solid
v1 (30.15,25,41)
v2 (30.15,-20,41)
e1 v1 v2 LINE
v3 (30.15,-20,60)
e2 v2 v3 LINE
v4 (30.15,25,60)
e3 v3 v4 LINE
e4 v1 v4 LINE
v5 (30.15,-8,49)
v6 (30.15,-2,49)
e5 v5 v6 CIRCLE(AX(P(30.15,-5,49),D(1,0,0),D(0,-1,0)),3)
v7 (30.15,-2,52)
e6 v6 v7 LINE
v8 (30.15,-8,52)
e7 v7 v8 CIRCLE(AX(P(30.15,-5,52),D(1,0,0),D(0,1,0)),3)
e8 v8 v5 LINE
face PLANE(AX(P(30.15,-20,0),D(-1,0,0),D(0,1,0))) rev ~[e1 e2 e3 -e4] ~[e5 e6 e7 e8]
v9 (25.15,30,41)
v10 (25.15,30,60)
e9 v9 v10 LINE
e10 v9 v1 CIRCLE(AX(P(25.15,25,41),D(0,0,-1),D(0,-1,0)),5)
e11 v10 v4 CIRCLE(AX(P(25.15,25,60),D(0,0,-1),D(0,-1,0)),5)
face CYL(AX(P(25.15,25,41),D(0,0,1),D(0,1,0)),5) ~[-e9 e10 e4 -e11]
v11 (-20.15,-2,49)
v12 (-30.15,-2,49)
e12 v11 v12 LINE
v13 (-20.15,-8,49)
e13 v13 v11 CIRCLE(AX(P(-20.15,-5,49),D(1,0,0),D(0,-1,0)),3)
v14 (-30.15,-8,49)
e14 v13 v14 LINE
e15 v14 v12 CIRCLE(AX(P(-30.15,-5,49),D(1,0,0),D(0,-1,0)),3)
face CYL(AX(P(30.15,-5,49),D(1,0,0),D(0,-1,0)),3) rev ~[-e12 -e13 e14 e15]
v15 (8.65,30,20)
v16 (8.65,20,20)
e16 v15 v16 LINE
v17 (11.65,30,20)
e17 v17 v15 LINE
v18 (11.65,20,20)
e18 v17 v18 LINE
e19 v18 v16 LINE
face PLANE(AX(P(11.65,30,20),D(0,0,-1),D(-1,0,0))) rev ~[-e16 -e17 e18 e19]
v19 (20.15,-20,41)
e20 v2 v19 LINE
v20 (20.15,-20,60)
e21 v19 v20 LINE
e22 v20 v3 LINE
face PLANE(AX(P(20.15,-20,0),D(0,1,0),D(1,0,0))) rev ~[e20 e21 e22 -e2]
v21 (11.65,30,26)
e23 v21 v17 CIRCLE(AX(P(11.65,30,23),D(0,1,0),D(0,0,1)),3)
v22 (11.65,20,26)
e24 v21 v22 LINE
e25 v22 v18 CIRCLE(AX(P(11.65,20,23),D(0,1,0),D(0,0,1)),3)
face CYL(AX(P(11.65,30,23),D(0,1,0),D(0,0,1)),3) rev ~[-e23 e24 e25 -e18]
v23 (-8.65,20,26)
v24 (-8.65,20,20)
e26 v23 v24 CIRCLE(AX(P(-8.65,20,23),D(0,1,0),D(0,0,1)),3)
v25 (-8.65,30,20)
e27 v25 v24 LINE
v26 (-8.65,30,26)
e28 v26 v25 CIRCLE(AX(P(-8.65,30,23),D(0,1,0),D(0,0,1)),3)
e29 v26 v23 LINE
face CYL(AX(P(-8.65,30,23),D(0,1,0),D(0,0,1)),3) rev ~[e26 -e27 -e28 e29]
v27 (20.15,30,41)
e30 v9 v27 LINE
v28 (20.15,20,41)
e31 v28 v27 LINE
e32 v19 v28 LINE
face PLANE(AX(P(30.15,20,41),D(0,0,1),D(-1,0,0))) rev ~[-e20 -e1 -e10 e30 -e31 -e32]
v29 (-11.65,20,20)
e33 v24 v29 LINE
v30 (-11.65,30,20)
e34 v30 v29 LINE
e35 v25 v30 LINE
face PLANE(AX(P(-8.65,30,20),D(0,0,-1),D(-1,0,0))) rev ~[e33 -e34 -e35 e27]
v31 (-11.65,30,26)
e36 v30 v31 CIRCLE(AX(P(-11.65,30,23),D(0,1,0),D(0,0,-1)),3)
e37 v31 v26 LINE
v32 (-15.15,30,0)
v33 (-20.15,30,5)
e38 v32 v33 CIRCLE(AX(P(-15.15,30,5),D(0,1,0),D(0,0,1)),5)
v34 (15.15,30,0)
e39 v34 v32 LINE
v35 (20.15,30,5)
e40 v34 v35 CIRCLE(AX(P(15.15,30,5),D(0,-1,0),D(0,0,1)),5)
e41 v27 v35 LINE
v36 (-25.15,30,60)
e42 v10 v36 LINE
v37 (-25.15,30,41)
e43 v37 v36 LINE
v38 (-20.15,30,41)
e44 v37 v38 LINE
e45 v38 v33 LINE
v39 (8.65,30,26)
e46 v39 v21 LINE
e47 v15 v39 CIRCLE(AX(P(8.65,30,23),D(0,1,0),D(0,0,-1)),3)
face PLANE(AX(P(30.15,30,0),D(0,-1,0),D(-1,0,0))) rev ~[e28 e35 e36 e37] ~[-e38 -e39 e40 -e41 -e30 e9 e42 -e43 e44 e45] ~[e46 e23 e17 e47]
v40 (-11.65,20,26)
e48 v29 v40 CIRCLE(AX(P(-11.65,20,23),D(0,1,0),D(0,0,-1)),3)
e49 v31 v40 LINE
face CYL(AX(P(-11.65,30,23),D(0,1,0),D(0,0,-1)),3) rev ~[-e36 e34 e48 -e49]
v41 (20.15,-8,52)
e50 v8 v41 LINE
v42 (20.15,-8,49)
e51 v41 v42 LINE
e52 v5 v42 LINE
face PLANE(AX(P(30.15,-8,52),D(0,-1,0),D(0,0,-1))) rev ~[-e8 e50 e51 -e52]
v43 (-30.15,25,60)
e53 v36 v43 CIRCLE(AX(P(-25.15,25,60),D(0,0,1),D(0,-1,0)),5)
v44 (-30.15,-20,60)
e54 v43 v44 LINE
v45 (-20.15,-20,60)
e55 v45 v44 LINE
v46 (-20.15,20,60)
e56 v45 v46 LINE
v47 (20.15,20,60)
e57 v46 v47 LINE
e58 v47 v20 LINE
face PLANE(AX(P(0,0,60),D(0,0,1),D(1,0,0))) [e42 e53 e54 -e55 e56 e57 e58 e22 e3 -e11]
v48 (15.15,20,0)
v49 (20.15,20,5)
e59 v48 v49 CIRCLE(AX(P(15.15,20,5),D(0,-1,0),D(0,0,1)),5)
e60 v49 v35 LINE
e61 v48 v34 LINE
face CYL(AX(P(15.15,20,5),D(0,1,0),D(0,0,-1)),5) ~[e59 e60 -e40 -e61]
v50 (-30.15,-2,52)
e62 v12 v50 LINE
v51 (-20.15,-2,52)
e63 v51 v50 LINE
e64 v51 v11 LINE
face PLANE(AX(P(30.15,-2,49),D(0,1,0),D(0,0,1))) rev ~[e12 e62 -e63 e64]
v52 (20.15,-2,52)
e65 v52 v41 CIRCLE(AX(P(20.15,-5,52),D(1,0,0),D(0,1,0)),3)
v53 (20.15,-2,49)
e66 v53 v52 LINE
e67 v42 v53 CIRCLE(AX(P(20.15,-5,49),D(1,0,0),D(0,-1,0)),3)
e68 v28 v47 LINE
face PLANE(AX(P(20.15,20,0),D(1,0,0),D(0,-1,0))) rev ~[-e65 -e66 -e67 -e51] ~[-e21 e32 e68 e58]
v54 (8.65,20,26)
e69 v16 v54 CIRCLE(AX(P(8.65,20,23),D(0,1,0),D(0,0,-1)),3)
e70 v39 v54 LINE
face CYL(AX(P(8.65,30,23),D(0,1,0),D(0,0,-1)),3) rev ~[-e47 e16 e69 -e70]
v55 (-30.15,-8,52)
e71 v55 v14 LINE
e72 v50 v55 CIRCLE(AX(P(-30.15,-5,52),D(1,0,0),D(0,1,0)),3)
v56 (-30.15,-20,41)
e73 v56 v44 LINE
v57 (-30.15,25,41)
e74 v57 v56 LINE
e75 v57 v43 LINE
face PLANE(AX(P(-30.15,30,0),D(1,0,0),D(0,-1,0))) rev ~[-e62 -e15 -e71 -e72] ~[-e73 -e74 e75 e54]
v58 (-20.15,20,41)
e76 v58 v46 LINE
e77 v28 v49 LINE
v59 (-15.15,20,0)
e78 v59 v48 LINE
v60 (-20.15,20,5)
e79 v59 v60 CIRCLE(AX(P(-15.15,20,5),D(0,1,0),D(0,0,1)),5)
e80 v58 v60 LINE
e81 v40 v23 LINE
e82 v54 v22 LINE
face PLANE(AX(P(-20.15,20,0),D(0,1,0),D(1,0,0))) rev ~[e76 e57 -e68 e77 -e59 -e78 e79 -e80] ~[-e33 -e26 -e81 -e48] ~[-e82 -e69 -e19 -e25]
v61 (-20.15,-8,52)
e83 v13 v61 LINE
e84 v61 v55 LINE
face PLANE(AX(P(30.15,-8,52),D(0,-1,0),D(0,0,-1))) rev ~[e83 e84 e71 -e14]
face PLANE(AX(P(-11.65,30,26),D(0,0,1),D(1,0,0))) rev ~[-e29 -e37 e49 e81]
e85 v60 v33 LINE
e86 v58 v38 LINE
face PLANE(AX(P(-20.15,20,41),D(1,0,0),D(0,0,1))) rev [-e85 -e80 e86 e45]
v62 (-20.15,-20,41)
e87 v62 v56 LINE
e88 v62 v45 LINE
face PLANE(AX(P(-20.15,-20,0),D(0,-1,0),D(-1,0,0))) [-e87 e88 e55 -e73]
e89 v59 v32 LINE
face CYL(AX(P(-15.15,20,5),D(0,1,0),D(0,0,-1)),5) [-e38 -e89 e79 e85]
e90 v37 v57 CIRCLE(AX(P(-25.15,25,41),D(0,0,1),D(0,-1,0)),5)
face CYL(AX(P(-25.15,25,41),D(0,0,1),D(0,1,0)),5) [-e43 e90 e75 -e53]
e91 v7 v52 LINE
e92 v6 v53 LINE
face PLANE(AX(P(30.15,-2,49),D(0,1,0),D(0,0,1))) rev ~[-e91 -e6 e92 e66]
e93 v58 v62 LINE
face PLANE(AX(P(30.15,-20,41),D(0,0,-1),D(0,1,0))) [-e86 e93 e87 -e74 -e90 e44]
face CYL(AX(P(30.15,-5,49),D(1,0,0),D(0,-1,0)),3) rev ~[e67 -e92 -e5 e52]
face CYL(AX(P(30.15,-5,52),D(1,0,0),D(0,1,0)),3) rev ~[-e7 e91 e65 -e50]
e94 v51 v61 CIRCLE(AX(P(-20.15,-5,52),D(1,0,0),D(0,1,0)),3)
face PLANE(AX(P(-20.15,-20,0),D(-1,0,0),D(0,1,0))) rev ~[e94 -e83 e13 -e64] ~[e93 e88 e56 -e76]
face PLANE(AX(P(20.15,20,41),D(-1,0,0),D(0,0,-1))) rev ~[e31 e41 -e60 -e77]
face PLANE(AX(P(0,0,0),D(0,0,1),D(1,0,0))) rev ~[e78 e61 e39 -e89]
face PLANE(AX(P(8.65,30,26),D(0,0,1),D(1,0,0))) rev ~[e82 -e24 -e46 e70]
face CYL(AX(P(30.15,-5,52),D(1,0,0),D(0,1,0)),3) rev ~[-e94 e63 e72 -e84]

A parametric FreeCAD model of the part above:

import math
import FreeCAD as App
import Part
import Sketcher
from FreeCAD import Vector
Q = App.Units.Quantity


def edges_at(feature, points):
    """Names of the edges that pass closest to the given points."""
    edges = feature.Shape.Edges
    near = lambda p: min(range(len(edges)), key=lambda i: edges[i].distToShape(Part.Vertex(*p))[0])
    return sorted({f"Edge{near(p) + 1}" for p in points})


def add_polygon(sketch, points):
    """Adds a closed chain of lines whose ends are joined by coincident constraints."""
    first, n = sketch.GeometryCount, len(points)
    for a, b in zip(points, points[1:] + points[:1]):
        sketch.addGeometry(Part.LineSegment(App.Vector(*a, 0), App.Vector(*b, 0)), False)
    for i in range(n):
        sketch.addConstraint(Sketcher.Constraint("Coincident", first + i, 2, first + (i + 1) % n, 1))

doc = App.newDocument("Part")
body = doc.addObject("PartDesign::Body", "Body")

# Sketch on XY plane
sketch1 = body.newObject("Sketcher::SketchObject", "Sketch")
sketch1.AttachmentSupport = (doc.getObject("XY_Plane"), [""])
sketch1.MapMode = "FlatFace"
add_polygon(sketch1, [(-20, -20), (-20, 20), (20, 20), (20, -20), (30, -20), (30, 30), (-30, 30), (-30, -20)])  # lines 0-7
sketch1.addConstraint(Sketcher.Constraint("Vertical", 0))
sketch1.addConstraint(Sketcher.Constraint("Horizontal", 1))
sketch1.addConstraint(Sketcher.Constraint("Vertical", 2))
sketch1.addConstraint(Sketcher.Constraint("Horizontal", 3))
sketch1.addConstraint(Sketcher.Constraint("Vertical", 4))
sketch1.addConstraint(Sketcher.Constraint("Horizontal", 5))
sketch1.addConstraint(Sketcher.Constraint("Vertical", 6))
sketch1.addConstraint(Sketcher.Constraint("Horizontal", 7))
sketch1.addConstraint(Sketcher.Constraint("Symmetric", 0, 2, 2, 2, -1, 1))
sketch1.addConstraint(Sketcher.Constraint("Symmetric", 3, 2, 6, 2, -2))
sketch1.addConstraint(Sketcher.Constraint("DistanceX", 3, 1, 3, 2, Q("10 mm")))
sketch1.addConstraint(Sketcher.Constraint("DistanceY", 0, 1, 0, 2, Q("40 mm")))
sketch1.addConstraint(Sketcher.Constraint("DistanceX", 1, 1, 1, 2, Q("40.3 mm")))
sketch1.addConstraint(Sketcher.Constraint("DistanceY", 1, 2, 4, 2, Q("10 mm")))
pad1 = body.newObject("PartDesign::Pad", "Pad")
pad1.Profile = sketch1
pad1.Length = 60

# Sketch on YZ plane
sketch2 = body.newObject("Sketcher::SketchObject", "Sketch001")
sketch2.AttachmentSupport = (doc.getObject("YZ_Plane"), [""])
sketch2.MapMode = "FlatFace"
sketch2.AttachmentOffset = App.Placement(Vector(0, 0, 30.15), App.Rotation())
add_polygon(sketch2, [(20, 0), (20, 41), (-20, 41), (-20, 0)])  # lines 0-3
sketch2.addConstraint(Sketcher.Constraint("Vertical", 0))
sketch2.addConstraint(Sketcher.Constraint("Horizontal", 1))
sketch2.addConstraint(Sketcher.Constraint("Vertical", 2))
sketch2.addConstraint(Sketcher.Constraint("Horizontal", 3))
sketch2.addConstraint(Sketcher.Constraint("Symmetric", 2, 2, 3, 2, -1, 1))
sketch2.addConstraint(Sketcher.Constraint("DistanceX", 1, 2, 1, 1, Q("40 mm")))
sketch2.addConstraint(Sketcher.Constraint("DistanceY", 0, 1, 0, 2, Q("41 mm")))
pocket1 = body.newObject("PartDesign::Pocket", "Pocket")
pocket1.Profile = sketch2
pocket1.Type = "ThroughAll"

# Sketch on XZ plane
sketch3 = body.newObject("Sketcher::SketchObject", "Sketch002")
sketch3.AttachmentSupport = (doc.getObject("XZ_Plane"), [""])
sketch3.MapMode = "FlatFace"
sketch3.AttachmentOffset = App.Placement(Vector(0, 0, -20), App.Rotation())
add_polygon(sketch3, [(30, 0), (30, 41), (20, 41), (20, 0)])  # lines 0-3
sketch3.addConstraint(Sketcher.Constraint("Vertical", 0))
sketch3.addConstraint(Sketcher.Constraint("Horizontal", 1))
sketch3.addConstraint(Sketcher.Constraint("Vertical", 2))
sketch3.addConstraint(Sketcher.Constraint("Horizontal", 3))
sketch3.addConstraint(Sketcher.Constraint("PointOnObject", 2, 2, -1))
sketch3.addConstraint(Sketcher.Constraint("DistanceX", 1, 2, 1, 1, Q("10 mm")))
sketch3.addConstraint(Sketcher.Constraint("DistanceY", 0, 1, 0, 2, Q("41 mm")))
sketch3.addConstraint(Sketcher.Constraint("DistanceX", -1, 1, 0, 2, Q("30.15 mm")))
pocket2 = body.newObject("PartDesign::Pocket", "Pocket001")
pocket2.Profile = sketch3
pocket2.Type = "ThroughAll"
doc.recompute()

mirrored = body.newObject("PartDesign::Mirrored", "Mirrored")
mirrored.Originals = [pocket2]
mirrored.MirrorPlane = (doc.getObject("YZ_Plane"), [""])
body.Tip = mirrored
doc.recompute()

fillet = body.newObject("PartDesign::Fillet", "Fillet")
fillet.Base = (mirrored, edges_at(mirrored, [
    (-30.15, 30, 50.5),
    (30.15, 30, 50.5),
    (-20.15, 25, 0),
    (20.15, 25, 0),
]))
fillet.Radius = 5

# Sketch on YZ plane
sketch4 = body.newObject("Sketcher::SketchObject", "Sketch003")
sketch4.AttachmentSupport = (doc.getObject("YZ_Plane"), [""])
sketch4.MapMode = "FlatFace"
sketch4.AttachmentOffset = App.Placement(Vector(0, 0, 30.15), App.Rotation())
sketch4.addGeometry(Part.ArcOfCircle(Part.Circle(Vector(-5, 52, 0), Vector(0, 0, 1), 3), math.radians(0), math.radians(180)), False)
sketch4.addGeometry(Part.LineSegment(Vector(-8, 52, 0), Vector(-8, 49, 0)), False)
sketch4.addGeometry(Part.ArcOfCircle(Part.Circle(Vector(-5, 49, 0), Vector(0, 0, 1), 3), math.radians(180), math.radians(360)), False)
sketch4.addGeometry(Part.LineSegment(Vector(-2, 49, 0), Vector(-2, 52, 0)), False)
sketch4.addConstraint(Sketcher.Constraint("Tangent", 0, 2, 1, 1))
sketch4.addConstraint(Sketcher.Constraint("Tangent", 1, 2, 2, 1))
sketch4.addConstraint(Sketcher.Constraint("Tangent", 2, 2, 3, 1))
sketch4.addConstraint(Sketcher.Constraint("Tangent", 3, 2, 0, 1))
sketch4.addConstraint(Sketcher.Constraint("Vertical", 1))
sketch4.addConstraint(Sketcher.Constraint("Vertical", 3))
sketch4.addConstraint(Sketcher.Constraint("Radius", 0, Q("3 mm")))
sketch4.addConstraint(Sketcher.Constraint("DistanceY", 1, 2, 1, 1, Q("3 mm")))
sketch4.addConstraint(Sketcher.Constraint("DistanceX", 0, 3, -1, 1, Q("5 mm")))
sketch4.addConstraint(Sketcher.Constraint("DistanceY", -1, 1, 0, 3, Q("52 mm")))
pocket3 = body.newObject("PartDesign::Pocket", "Pocket002")
pocket3.Profile = sketch4
pocket3.Type = "ThroughAll"

# Sketch on XZ plane
sketch5 = body.newObject("Sketcher::SketchObject", "Sketch004")
sketch5.AttachmentSupport = (doc.getObject("XZ_Plane"), [""])
sketch5.MapMode = "FlatFace"
sketch5.AttachmentOffset = App.Placement(Vector(0, 0, -30), App.Rotation())
sketch5.addGeometry(Part.ArcOfCircle(Part.Circle(Vector(-11.7, 23, 0), Vector(0, 0, 1), 3), math.radians(90), math.radians(270)), False)
sketch5.addGeometry(Part.LineSegment(Vector(-11.7, 26, 0), Vector(-8.7, 26, 0)), False)
sketch5.addGeometry(Part.ArcOfCircle(Part.Circle(Vector(-8.7, 23, 0), Vector(0, 0, 1), 3), math.radians(-90), math.radians(90)), False)
sketch5.addGeometry(Part.LineSegment(Vector(-8.7, 20, 0), Vector(-11.7, 20, 0)), False)
sketch5.addGeometry(Part.ArcOfCircle(Part.Circle(Vector(8.7, 23, 0), Vector(0, 0, 1), 3), math.radians(90), math.radians(270)), False)
sketch5.addGeometry(Part.LineSegment(Vector(8.7, 26, 0), Vector(11.7, 26, 0)), False)
sketch5.addGeometry(Part.ArcOfCircle(Part.Circle(Vector(11.7, 23, 0), Vector(0, 0, 1), 3), math.radians(-90), math.radians(90)), False)
sketch5.addGeometry(Part.LineSegment(Vector(11.7, 20, 0), Vector(8.7, 20, 0)), False)
sketch5.addConstraint(Sketcher.Constraint("Tangent", 0, 1, 1, 1))
sketch5.addConstraint(Sketcher.Constraint("Tangent", 1, 2, 2, 2))
sketch5.addConstraint(Sketcher.Constraint("Tangent", 2, 1, 3, 1))
sketch5.addConstraint(Sketcher.Constraint("Tangent", 3, 2, 0, 2))
sketch5.addConstraint(Sketcher.Constraint("Tangent", 4, 1, 5, 1))
sketch5.addConstraint(Sketcher.Constraint("Tangent", 5, 2, 6, 2))
sketch5.addConstraint(Sketcher.Constraint("Tangent", 6, 1, 7, 1))
sketch5.addConstraint(Sketcher.Constraint("Tangent", 7, 2, 4, 2))
sketch5.addConstraint(Sketcher.Constraint("Horizontal", 1))
sketch5.addConstraint(Sketcher.Constraint("Horizontal", 3))
sketch5.addConstraint(Sketcher.Constraint("Horizontal", 5))
sketch5.addConstraint(Sketcher.Constraint("Horizontal", 7))
sketch5.addConstraint(Sketcher.Constraint("Equal", 2, 4))
sketch5.addConstraint(Sketcher.Constraint("Symmetric", 2, 3, 4, 3, -2))
sketch5.addConstraint(Sketcher.Constraint("Equal", 3, 5))
sketch5.addConstraint(Sketcher.Constraint("Radius", 0, Q("3 mm")))
sketch5.addConstraint(Sketcher.Constraint("DistanceX", 1, 1, 1, 2, Q("3 mm")))
sketch5.addConstraint(Sketcher.Constraint("DistanceY", -1, 1, 0, 3, Q("23 mm")))
sketch5.addConstraint(Sketcher.Constraint("DistanceX", 2, 3, 4, 3, Q("17.3 mm")))
pocket4 = body.newObject("PartDesign::Pocket", "Pocket003")
pocket4.Profile = sketch5
pocket4.Type = "ThroughAll"
pocket4.Reversed = True

doc.recompute()
